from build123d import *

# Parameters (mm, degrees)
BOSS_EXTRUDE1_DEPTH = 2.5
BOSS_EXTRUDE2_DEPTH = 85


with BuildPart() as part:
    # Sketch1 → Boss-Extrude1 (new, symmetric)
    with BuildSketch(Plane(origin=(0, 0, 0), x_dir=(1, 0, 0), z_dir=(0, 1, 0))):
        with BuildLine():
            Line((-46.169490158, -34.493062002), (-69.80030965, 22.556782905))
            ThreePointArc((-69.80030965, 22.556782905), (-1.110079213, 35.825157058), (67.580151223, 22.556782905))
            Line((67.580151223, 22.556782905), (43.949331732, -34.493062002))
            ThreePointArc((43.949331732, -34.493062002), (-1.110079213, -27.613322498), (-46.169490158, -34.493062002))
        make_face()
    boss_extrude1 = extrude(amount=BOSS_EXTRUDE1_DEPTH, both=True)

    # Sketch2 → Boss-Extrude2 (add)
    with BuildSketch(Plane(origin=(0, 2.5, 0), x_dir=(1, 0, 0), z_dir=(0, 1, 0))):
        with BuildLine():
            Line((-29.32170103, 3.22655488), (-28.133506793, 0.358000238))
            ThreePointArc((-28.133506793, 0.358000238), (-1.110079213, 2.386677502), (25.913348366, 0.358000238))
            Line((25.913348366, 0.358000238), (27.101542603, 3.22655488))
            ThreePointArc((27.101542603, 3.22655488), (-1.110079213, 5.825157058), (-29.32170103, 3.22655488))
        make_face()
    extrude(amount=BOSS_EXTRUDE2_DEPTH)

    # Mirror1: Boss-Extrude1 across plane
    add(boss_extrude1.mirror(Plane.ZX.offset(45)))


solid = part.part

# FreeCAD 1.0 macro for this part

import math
import FreeCAD as App
import Part
import Sketcher
Q = App.Units.Quantity

doc = App.newDocument("Part")
body = doc.addObject("PartDesign::Body", "Body")

# Sketch on XZ plane
sketch1 = doc.addObject("Sketcher::SketchObject", "Sketch")
body.addObject(sketch1)
sketch1.AttachmentSupport = (doc.XZ_Plane, [""])
sketch1.MapMode = "FlatFace"
sketch1.addGeometry([
    Part.LineSegment(App.Vector(-70, -23, 0), App.Vector(-46, 34, 0)),
    Part.ArcOfCircle(Part.Circle(App.Vector(-1, 179, 0), App.Vector(0, 0, 1), 151), math.radians(-107), math.radians(-73)),
    Part.LineSegment(App.Vector(44, 34, 0), App.Vector(68, -23, 0)),
    Part.ArcOfCircle(Part.Circle(App.Vector(-1, 149, 0), App.Vector(0, 0, 1), 184), math.radians(-112), math.radians(-68)),
], False)
sketch1.addConstraint([
    Sketcher.Constraint("Coincident", 0, 2, 1, 1),
    Sketcher.Constraint("Coincident", 1, 2, 2, 1),
    Sketcher.Constraint("Coincident", 2, 2, 3, 2),
    Sketcher.Constraint("Coincident", 3, 1, 0, 1),
    Sketcher.Constraint("Horizontal", 0, 2, 1, 2),
    Sketcher.Constraint("Horizontal", 2, 2, 3, 1),
    Sketcher.Constraint("Vertical", 1, 3, 3, 3),
    Sketcher.Constraint("Radius", 1, Q("151 mm")),
    Sketcher.Constraint("Angle", 0, Q("67.5 deg")),
    Sketcher.Constraint("DistanceY", 3, 3, 1, 3, Q("30 mm")),
    Sketcher.Constraint("Radius", 3, Q("184.43848 mm")),
    Sketcher.Constraint("DistanceX", 1, 3, -1, 1, Q("1.110079 mm")),
    Sketcher.Constraint("DistanceX", 0, 2, -1, 1, Q("46.16949 mm")),
    Sketcher.Constraint("DistanceY", -1, 1, 1, 3, Q("178.613323 mm")),
])
pad1 = doc.addObject("PartDesign::Pad", "Pad")
body.addObject(pad1)
pad1.Profile = sketch1
pad1.Length = 5
pad1.Midplane = True

# Sketch on XZ plane
sketch2 = doc.addObject("Sketcher::SketchObject", "Sketch001")
body.addObject(sketch2)
sketch2.AttachmentSupport = (doc.XZ_Plane, [""])
sketch2.MapMode = "FlatFace"
sketch2.AttachmentOffset = App.Placement(App.Vector(0, 0, -2.5), App.Rotation())
sketch2.addGeometry([
    Part.LineSegment(App.Vector(-29.321701, -3.226555, 0), App.Vector(-28.133507, -0.358, 0)),
    Part.ArcOfCircle(Part.Circle(App.Vector(-1.110079, 178.613323, 0), App.Vector(0, 0, 1), 181), math.radians(-98.586404), math.radians(-81.413596)),
    Part.LineSegment(App.Vector(25.913348, -0.358, 0), App.Vector(27.101543, -3.226555, 0)),
    Part.ArcOfCircle(Part.Circle(App.Vector(-1.110079, 148.613323, 0), App.Vector(0, 0, 1), 154.43848), math.radians(-100.525449), math.radians(-79.474551)),
], False)
sketch2.addConstraint([
    Sketcher.Constraint("Coincident", 0, 2, 1, 1),
    Sketcher.Constraint("Coincident", 1, 2, 2, 1),
    Sketcher.Constraint("Coincident", 2, 2, 3, 2),
    Sketcher.Constraint("Coincident", 3, 1, 0, 1),
    Sketcher.Constraint("Radius", 1, Q("181 mm")),
    Sketcher.Constraint("DistanceY", 3, 3, 1, 3, Q("30 mm")),
    Sketcher.Constraint("Radius", 3, Q("154.43848 mm")),
    Sketcher.Constraint("DistanceY", 0, 2, -1, 1, Q("0.358 mm")),
    Sketcher.Constraint("DistanceY", 1, 2, -1, 1, Q("0.358 mm")),
    Sketcher.Constraint("Distance", 0, Q("3.104901 mm")),
    Sketcher.Constraint("Distance", 2, Q("3.104901 mm")),
    Sketcher.Constraint("DistanceX", 3, 1, -1, 1, Q("29.321701 mm")),
    Sketcher.Constraint("DistanceX", 1, 3, -1, 1, Q("1.110079 mm")),
    Sketcher.Constraint("DistanceX", 3, 3, -1, 1, Q("1.110079 mm")),
])
pad2 = doc.addObject("PartDesign::Pad", "Pad001")
body.addObject(pad2)
pad2.Profile = sketch2
pad2.Length = 85
pad2.Reversed = True
doc.recompute()

datumplane = doc.addObject("PartDesign::Plane", "DatumPlane")
body.addObject(datumplane)
datumplane.AttachmentSupport = (doc.XZ_Plane, [""])
datumplane.MapMode = "FlatFace"
datumplane.AttachmentOffset = App.Placement(App.Vector(0, 0, -45), App.Rotation())
mirrored = doc.addObject("PartDesign::Mirrored", "Mirrored")
body.addObject(mirrored)
mirrored.Originals = [pad1]
mirrored.MirrorPlane = (datumplane, [""])
body.Tip = mirrored

doc.recompute()
